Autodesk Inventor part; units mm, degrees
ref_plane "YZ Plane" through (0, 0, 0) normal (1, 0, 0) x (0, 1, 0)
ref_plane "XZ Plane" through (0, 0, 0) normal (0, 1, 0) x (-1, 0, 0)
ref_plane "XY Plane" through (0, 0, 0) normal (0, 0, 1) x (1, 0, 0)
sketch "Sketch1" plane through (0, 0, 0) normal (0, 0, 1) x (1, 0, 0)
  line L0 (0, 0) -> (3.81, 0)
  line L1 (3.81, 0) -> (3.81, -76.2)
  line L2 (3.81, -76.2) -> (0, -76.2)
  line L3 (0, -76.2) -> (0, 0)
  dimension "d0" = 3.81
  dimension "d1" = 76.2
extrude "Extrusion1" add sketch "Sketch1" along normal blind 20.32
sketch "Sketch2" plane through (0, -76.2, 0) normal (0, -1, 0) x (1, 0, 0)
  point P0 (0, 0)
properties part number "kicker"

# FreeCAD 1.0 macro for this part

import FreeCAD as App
import Part
import Sketcher
from FreeCAD import Vector
Q = App.Units.Quantity


def add_polygon(sketch, points):
    """Adds a closed chain of lines whose ends are joined by coincident constraints."""
    first, n = sketch.GeometryCount, len(points)
    for a, b in zip(points, points[1:] + points[:1]):
        sketch.addGeometry(Part.LineSegment(App.Vector(*a, 0), App.Vector(*b, 0)), False)
    for i in range(n):
        sketch.addConstraint(Sketcher.Constraint("Coincident", first + i, 2, first + (i + 1) % n, 1))

doc = App.newDocument("Part")
body = doc.addObject("PartDesign::Body", "Body")

# Sketch on XY plane
sketch1 = body.newObject("Sketcher::SketchObject", "Sketch")
sketch1.AttachmentSupport = (doc.getObject("XY_Plane"), [""])
sketch1.MapMode = "FlatFace"
add_polygon(sketch1, [(3.8, 0), (0, 0), (0, -76.2), (3.8, -76.2)])  # lines 0-3
sketch1.addConstraint([
    Sketcher.Constraint("Horizontal", 0),
    Sketcher.Constraint("Vertical", 1),
    Sketcher.Constraint("Horizontal", 2),
    Sketcher.Constraint("Vertical", 3),
    Sketcher.Constraint("Coincident", 0, 2, -1, 1),
    Sketcher.Constraint("DistanceY", 1, 2, 1, 1, Q("3 in")),
    Sketcher.Constraint("DistanceX", 0, 2, 0, 1, Q("0.15 in")),
])
pad1 = body.newObject("PartDesign::Pad", "Pad")
pad1.Profile = sketch1
pad1.Length = Q("0.8 in")

doc.recompute()
